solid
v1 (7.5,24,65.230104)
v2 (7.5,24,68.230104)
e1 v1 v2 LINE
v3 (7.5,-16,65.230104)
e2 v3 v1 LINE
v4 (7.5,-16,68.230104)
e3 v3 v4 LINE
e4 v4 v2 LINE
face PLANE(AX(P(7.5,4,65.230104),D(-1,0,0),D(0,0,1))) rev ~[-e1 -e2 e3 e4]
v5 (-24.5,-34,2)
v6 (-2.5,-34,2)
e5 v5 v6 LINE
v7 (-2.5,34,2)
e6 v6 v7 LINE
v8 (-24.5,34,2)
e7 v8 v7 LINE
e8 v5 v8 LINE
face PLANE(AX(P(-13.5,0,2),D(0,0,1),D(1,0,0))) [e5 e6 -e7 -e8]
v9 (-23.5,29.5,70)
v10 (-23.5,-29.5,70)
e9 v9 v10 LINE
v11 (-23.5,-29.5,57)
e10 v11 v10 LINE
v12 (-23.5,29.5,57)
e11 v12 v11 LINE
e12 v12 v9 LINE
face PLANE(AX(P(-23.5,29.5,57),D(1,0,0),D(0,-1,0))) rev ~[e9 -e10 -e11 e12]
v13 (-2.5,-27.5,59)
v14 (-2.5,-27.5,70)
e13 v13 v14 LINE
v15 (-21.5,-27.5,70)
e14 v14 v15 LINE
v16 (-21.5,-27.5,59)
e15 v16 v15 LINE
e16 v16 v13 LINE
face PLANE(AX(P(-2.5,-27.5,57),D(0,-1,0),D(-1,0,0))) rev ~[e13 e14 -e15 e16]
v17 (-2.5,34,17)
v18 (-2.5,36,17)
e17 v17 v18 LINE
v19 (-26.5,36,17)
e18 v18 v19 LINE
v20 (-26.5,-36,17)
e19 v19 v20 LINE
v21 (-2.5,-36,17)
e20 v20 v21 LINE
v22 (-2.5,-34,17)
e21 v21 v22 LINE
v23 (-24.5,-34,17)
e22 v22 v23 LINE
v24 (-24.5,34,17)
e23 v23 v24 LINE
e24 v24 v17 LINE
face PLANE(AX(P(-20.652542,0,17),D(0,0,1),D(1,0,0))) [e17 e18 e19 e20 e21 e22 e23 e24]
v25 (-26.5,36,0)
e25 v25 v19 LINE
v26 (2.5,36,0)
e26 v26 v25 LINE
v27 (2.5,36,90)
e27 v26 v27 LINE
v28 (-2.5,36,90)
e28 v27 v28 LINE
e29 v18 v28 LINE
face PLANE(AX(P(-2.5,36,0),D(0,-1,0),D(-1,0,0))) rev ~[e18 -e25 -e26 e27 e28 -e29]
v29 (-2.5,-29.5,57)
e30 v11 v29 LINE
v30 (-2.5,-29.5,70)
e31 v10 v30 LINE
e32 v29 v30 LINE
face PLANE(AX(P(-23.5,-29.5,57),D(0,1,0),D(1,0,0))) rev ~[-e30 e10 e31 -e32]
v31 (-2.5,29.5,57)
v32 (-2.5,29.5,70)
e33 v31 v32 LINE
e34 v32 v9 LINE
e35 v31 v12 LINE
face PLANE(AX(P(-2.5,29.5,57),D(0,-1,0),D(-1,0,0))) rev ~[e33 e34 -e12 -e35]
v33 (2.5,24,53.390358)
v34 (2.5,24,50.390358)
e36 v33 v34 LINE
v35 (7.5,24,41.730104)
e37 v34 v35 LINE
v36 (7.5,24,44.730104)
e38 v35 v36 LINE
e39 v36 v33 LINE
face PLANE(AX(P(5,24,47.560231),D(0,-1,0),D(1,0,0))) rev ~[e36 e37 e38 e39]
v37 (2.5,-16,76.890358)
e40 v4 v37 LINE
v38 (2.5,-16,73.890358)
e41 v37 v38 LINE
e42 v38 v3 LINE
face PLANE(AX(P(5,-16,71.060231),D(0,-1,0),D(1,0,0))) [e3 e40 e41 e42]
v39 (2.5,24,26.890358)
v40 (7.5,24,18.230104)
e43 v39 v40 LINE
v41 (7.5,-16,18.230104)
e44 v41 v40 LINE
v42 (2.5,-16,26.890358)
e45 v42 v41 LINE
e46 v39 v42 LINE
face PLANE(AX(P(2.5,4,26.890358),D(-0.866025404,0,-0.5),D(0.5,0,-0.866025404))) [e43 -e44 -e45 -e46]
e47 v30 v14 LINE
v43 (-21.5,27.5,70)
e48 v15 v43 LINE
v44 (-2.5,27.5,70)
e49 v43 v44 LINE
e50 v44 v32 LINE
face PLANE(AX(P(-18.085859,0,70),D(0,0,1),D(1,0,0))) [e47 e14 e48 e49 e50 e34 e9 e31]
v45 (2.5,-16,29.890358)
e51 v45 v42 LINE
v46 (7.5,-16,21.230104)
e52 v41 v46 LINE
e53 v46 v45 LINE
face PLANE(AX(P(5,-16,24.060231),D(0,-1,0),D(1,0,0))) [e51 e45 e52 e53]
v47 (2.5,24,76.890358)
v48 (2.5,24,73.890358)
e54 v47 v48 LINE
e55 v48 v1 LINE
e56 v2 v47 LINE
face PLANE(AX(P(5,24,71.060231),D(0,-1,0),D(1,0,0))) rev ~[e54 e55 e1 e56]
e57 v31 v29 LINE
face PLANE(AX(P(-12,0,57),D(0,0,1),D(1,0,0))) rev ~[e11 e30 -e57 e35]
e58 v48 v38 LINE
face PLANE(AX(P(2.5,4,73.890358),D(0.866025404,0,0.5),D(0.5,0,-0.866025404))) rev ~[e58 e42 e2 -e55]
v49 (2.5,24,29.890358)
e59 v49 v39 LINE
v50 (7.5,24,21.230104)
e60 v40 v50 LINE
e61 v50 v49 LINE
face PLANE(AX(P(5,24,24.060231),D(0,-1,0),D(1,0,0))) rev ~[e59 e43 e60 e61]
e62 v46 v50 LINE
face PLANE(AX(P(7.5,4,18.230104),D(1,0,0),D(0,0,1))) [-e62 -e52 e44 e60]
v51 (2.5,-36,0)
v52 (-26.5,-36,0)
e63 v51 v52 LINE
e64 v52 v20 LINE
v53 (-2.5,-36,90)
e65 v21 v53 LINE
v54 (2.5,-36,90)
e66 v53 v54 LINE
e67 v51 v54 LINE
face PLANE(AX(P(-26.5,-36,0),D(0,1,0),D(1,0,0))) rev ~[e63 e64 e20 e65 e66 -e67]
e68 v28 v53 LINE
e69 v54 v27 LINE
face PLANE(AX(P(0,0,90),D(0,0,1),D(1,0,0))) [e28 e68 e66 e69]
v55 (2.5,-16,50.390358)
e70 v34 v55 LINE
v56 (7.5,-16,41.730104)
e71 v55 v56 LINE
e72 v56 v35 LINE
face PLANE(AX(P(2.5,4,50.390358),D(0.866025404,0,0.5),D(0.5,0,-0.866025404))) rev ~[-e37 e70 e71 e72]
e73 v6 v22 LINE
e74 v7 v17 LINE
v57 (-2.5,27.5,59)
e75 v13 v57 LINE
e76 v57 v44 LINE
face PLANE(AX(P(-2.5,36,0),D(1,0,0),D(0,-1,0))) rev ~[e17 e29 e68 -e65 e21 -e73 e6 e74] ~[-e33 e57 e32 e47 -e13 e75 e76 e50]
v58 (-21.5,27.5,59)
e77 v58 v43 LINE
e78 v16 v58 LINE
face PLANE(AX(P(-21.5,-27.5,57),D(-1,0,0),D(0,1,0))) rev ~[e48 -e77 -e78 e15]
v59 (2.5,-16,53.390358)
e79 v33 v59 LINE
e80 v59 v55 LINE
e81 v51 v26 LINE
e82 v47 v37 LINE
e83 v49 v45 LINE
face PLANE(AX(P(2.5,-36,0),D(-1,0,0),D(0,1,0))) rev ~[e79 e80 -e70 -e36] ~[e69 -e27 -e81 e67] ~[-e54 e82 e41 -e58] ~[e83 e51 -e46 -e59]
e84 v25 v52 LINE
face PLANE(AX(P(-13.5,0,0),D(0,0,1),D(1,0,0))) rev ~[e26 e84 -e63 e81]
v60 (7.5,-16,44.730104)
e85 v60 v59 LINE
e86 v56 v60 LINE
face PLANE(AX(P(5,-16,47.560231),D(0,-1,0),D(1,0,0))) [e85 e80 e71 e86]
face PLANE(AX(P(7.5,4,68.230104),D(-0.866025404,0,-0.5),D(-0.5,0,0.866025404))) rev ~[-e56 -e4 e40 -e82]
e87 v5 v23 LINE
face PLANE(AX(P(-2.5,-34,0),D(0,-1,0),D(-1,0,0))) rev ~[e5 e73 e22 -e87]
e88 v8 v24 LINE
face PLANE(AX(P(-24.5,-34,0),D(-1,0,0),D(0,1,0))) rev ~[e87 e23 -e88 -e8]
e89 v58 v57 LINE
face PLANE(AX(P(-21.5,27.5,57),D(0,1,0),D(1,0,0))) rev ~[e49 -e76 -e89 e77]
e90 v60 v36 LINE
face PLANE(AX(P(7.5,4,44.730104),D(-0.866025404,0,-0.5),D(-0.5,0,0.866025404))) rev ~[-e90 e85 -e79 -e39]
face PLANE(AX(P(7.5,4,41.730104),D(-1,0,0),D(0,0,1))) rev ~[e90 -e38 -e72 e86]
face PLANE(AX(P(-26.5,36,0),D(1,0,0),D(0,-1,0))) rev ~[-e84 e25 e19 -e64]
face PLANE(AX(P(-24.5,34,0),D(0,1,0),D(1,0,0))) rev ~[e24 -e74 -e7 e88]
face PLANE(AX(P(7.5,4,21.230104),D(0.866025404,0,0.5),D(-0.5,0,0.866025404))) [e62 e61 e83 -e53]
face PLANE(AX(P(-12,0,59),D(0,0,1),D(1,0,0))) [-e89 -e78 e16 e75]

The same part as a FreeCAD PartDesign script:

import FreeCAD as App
import Part
import Sketcher
from FreeCAD import Vector
Q = App.Units.Quantity

doc = App.newDocument("Part")
body = doc.addObject("PartDesign::Body", "Body")

# Sketch on XY plane
sketch1 = body.newObject("Sketcher::SketchObject", "Sketch")
sketch1.AttachmentSupport = (doc.getObject("XY_Plane"), [""])
sketch1.MapMode = "FlatFace"
sketch1.addGeometry([
    Part.LineSegment(Vector(2, -36, 0), Vector(2, 36, 0)),
    Part.LineSegment(Vector(2, 36, 0), Vector(-2, 36, 0)),
    Part.LineSegment(Vector(-2, 36, 0), Vector(-2, -36, 0)),
    Part.LineSegment(Vector(-2, -36, 0), Vector(2, -36, 0)),
], False)
sketch1.addConstraint([
    Sketcher.Constraint("Coincident", 0, 2, 1, 1),
    Sketcher.Constraint("Coincident", 1, 2, 2, 1),
    Sketcher.Constraint("Coincident", 2, 2, 3, 1),
    Sketcher.Constraint("Coincident", 3, 2, 0, 1),
    Sketcher.Constraint("Vertical", 0),
    Sketcher.Constraint("Horizontal", 1),
    Sketcher.Constraint("Vertical", 2),
    Sketcher.Constraint("Horizontal", 3),
    Sketcher.Constraint("Symmetric", 0, 2, 2, 2, -1, 1),
    Sketcher.Constraint("DistanceX", 1, 2, 1, 1, 5.0),
    Sketcher.Constraint("DistanceY", 0, 1, 0, 2, 72.0),
])
pad1 = body.newObject("PartDesign::Pad", "Pad")
pad1.Profile = sketch1
pad1.Length = 90

# Sketch on XY plane
sketch2 = body.newObject("Sketcher::SketchObject", "Sketch001")
sketch2.AttachmentSupport = (doc.getObject("XY_Plane"), [""])
sketch2.MapMode = "FlatFace"
sketch2.addGeometry([
    Part.LineSegment(Vector(-2.5, 34, 0), Vector(-2.5, 36, 0)),  # 0
    Part.LineSegment(Vector(-2.5, 36, 0), Vector(-26.5, 36, 0)),  # 1
    Part.LineSegment(Vector(-26.5, 36, 0), Vector(-26.5, -36, 0)),  # 2
    Part.LineSegment(Vector(-26.5, -36, 0), Vector(-2.5, -36, 0)),  # 3
    Part.LineSegment(Vector(-2.5, -36, 0), Vector(-2.5, -34, 0)),  # 4
    Part.LineSegment(Vector(-2.5, -34, 0), Vector(-24.5, -34, 0)),  # 5
    Part.LineSegment(Vector(-24.5, -34, 0), Vector(-24.5, 34, 0)),  # 6
    Part.LineSegment(Vector(-24.5, 34, 0), Vector(-2.5, 34, 0)),  # 7
], False)
sketch2.addConstraint([
    Sketcher.Constraint("Coincident", 0, 2, 1, 1),
    Sketcher.Constraint("Coincident", 1, 2, 2, 1),
    Sketcher.Constraint("Coincident", 2, 2, 3, 1),
    Sketcher.Constraint("Coincident", 3, 2, 4, 1),
    Sketcher.Constraint("Coincident", 4, 2, 5, 1),
    Sketcher.Constraint("Coincident", 5, 2, 6, 1),
    Sketcher.Constraint("Coincident", 6, 2, 7, 1),
    Sketcher.Constraint("Coincident", 7, 2, 0, 1),
    Sketcher.Constraint("Vertical", 0),
    Sketcher.Constraint("Horizontal", 1),
    Sketcher.Constraint("Vertical", 2),
    Sketcher.Constraint("Horizontal", 3),
    Sketcher.Constraint("Vertical", 4),
    Sketcher.Constraint("Horizontal", 5),
    Sketcher.Constraint("Vertical", 6),
    Sketcher.Constraint("Horizontal", 7),
    Sketcher.Constraint("Symmetric", 0, 2, 3, 2, -1),
    Sketcher.Constraint("Equal", 0, 4),
    Sketcher.Constraint("DistanceX", 1, 2, 1, 1, 24.0),
    Sketcher.Constraint("DistanceX", 5, 2, 5, 1, 22.0),
    Sketcher.Constraint("DistanceY", 0, 1, 0, 2, 2.0),
    Sketcher.Constraint("DistanceY", 2, 2, 2, 1, 72.0),
    Sketcher.Constraint("DistanceX", 0, 2, -1, 1, 2.5),
])
pad2 = body.newObject("PartDesign::Pad", "Pad001")
pad2.Profile = sketch2
pad2.Length = 17

# Sketch on XY plane
sketch3 = body.newObject("Sketcher::SketchObject", "Sketch002")
sketch3.AttachmentSupport = (doc.getObject("XY_Plane"), [""])
sketch3.MapMode = "FlatFace"
sketch3.addGeometry([
    Part.LineSegment(Vector(-24, 34, 0), Vector(-24, -34, 0)),
    Part.LineSegment(Vector(-24, -34, 0), Vector(-2, -34, 0)),
    Part.LineSegment(Vector(-2, -34, 0), Vector(-2, 34, 0)),
    Part.LineSegment(Vector(-2, 34, 0), Vector(-24, 34, 0)),
], False)
sketch3.addConstraint([
    Sketcher.Constraint("Coincident", 0, 2, 1, 1),
    Sketcher.Constraint("Coincident", 1, 2, 2, 1),
    Sketcher.Constraint("Coincident", 2, 2, 3, 1),
    Sketcher.Constraint("Coincident", 3, 2, 0, 1),
    Sketcher.Constraint("Vertical", 0),
    Sketcher.Constraint("Horizontal", 1),
    Sketcher.Constraint("Vertical", 2),
    Sketcher.Constraint("Horizontal", 3),
    Sketcher.Constraint("DistanceX", 1, 1, 1, 2, 22.0),
    Sketcher.Constraint("DistanceY", 0, 2, 0, 1, 68.0),
    Sketcher.Constraint("DistanceY", 0, 2, -1, 1, 34.0),
    Sketcher.Constraint("DistanceX", 0, 2, -1, 1, 24.5),
])
pad3 = body.newObject("PartDesign::Pad", "Pad002")
pad3.Profile = sketch3
pad3.Length = 2

# Sketch on XY plane
sketch4 = body.newObject("Sketcher::SketchObject", "Sketch003")
sketch4.AttachmentSupport = (doc.getObject("XY_Plane"), [""])
sketch4.MapMode = "FlatFace"
sketch4.AttachmentOffset = App.Placement(Vector(0, 0, 57), App.Rotation())
sketch4.addGeometry([
    Part.LineSegment(Vector(-2.5, 27.5, 0), Vector(-2.5, 29.5, 0)),  # 0
    Part.LineSegment(Vector(-2.5, 29.5, 0), Vector(-23.5, 29.5, 0)),  # 1
    Part.LineSegment(Vector(-23.5, 29.5, 0), Vector(-23.5, -29.5, 0)),  # 2
    Part.LineSegment(Vector(-23.5, -29.5, 0), Vector(-2.5, -29.5, 0)),  # 3
    Part.LineSegment(Vector(-2.5, -29.5, 0), Vector(-2.5, -27.5, 0)),  # 4
    Part.LineSegment(Vector(-2.5, -27.5, 0), Vector(-21.5, -27.5, 0)),  # 5
    Part.LineSegment(Vector(-21.5, -27.5, 0), Vector(-21.5, 27.5, 0)),  # 6
    Part.LineSegment(Vector(-21.5, 27.5, 0), Vector(-2.5, 27.5, 0)),  # 7
], False)
sketch4.addConstraint([
    Sketcher.Constraint("Coincident", 0, 2, 1, 1),
    Sketcher.Constraint("Coincident", 1, 2, 2, 1),
    Sketcher.Constraint("Coincident", 2, 2, 3, 1),
    Sketcher.Constraint("Coincident", 3, 2, 4, 1),
    Sketcher.Constraint("Coincident", 4, 2, 5, 1),
    Sketcher.Constraint("Coincident", 5, 2, 6, 1),
    Sketcher.Constraint("Coincident", 6, 2, 7, 1),
    Sketcher.Constraint("Coincident", 7, 2, 0, 1),
    Sketcher.Constraint("Vertical", 0),
    Sketcher.Constraint("Horizontal", 1),
    Sketcher.Constraint("Vertical", 2),
    Sketcher.Constraint("Horizontal", 3),
    Sketcher.Constraint("Vertical", 4),
    Sketcher.Constraint("Horizontal", 5),
    Sketcher.Constraint("Vertical", 6),
    Sketcher.Constraint("Horizontal", 7),
    Sketcher.Constraint("Symmetric", 0, 2, 3, 2, -1),
    Sketcher.Constraint("Equal", 0, 4),
    Sketcher.Constraint("DistanceX", 1, 2, 1, 1, 21.0),
    Sketcher.Constraint("DistanceX", 5, 2, 5, 1, 19.0),
    Sketcher.Constraint("DistanceY", 0, 1, 0, 2, 2.0),
    Sketcher.Constraint("DistanceY", 2, 2, 2, 1, 59.0),
    Sketcher.Constraint("DistanceX", 0, 2, -1, 1, 2.5),
])
pad4 = body.newObject("PartDesign::Pad", "Pad003")
pad4.Profile = sketch4
pad4.Length = 13

# Sketch on XY plane
sketch5 = body.newObject("Sketcher::SketchObject", "Sketch004")
sketch5.AttachmentSupport = (doc.getObject("XY_Plane"), [""])
sketch5.MapMode = "FlatFace"
sketch5.AttachmentOffset = App.Placement(Vector(0, 0, 57), App.Rotation())
sketch5.addGeometry([
    Part.LineSegment(Vector(-22, 28, 0), Vector(-22, -28, 0)),
    Part.LineSegment(Vector(-22, -28, 0), Vector(-2, -28, 0)),
    Part.LineSegment(Vector(-2, -28, 0), Vector(-2, 28, 0)),
    Part.LineSegment(Vector(-2, 28, 0), Vector(-22, 28, 0)),
], False)
sketch5.addConstraint([
    Sketcher.Constraint("Coincident", 0, 2, 1, 1),
    Sketcher.Constraint("Coincident", 1, 2, 2, 1),
    Sketcher.Constraint("Coincident", 2, 2, 3, 1),
    Sketcher.Constraint("Coincident", 3, 2, 0, 1),
    Sketcher.Constraint("Vertical", 0),
    Sketcher.Constraint("Horizontal", 1),
    Sketcher.Constraint("Vertical", 2),
    Sketcher.Constraint("Horizontal", 3),
    Sketcher.Constraint("DistanceX", 1, 1, 1, 2, 19.0),
    Sketcher.Constraint("DistanceY", 0, 2, 0, 1, 55.0),
    Sketcher.Constraint("DistanceX", 0, 2, -1, 1, 21.5),
    Sketcher.Constraint("DistanceY", 0, 2, -1, 1, 27.5),
])
pad5 = body.newObject("PartDesign::Pad", "Pad004")
pad5.Profile = sketch5
pad5.Length = 2

# Sketch on XZ plane
sketch6 = body.newObject("Sketcher::SketchObject", "Sketch005")
sketch6.AttachmentSupport = (doc.getObject("XZ_Plane"), [""])
sketch6.MapMode = "FlatFace"
sketch6.AttachmentOffset = App.Placement(Vector(0, 0, -4), App.Rotation())
sketch6.addGeometry([
    Part.LineSegment(Vector(7.5, 68.2, 0), Vector(2.5, 76.9, 0)),  # 0
    Part.LineSegment(Vector(2.5, 76.9, 0), Vector(2.5, 73.9, 0)),  # 1
    Part.LineSegment(Vector(2.5, 73.9, 0), Vector(7.5, 65.2, 0)),  # 2
    Part.LineSegment(Vector(7.5, 65.2, 0), Vector(7.5, 68.2, 0)),  # 3
    Part.LineSegment(Vector(7.5, 44.7, 0), Vector(2.5, 53.4, 0)),  # 4
    Part.LineSegment(Vector(2.5, 53.4, 0), Vector(2.5, 50.4, 0)),  # 5
    Part.LineSegment(Vector(2.5, 50.4, 0), Vector(7.5, 41.7, 0)),  # 6
    Part.LineSegment(Vector(7.5, 41.7, 0), Vector(7.5, 44.7, 0)),  # 7
    Part.LineSegment(Vector(7.5, 21.2, 0), Vector(2.5, 29.9, 0)),  # 8
    Part.LineSegment(Vector(2.5, 29.9, 0), Vector(2.5, 26.9, 0)),  # 9
    Part.LineSegment(Vector(2.5, 26.9, 0), Vector(7.5, 18.2, 0)),  # 10
    Part.LineSegment(Vector(7.5, 18.2, 0), Vector(7.5, 21.2, 0)),  # 11
], False)
sketch6.addConstraint([
    Sketcher.Constraint("Coincident", 0, 2, 1, 1),
    Sketcher.Constraint("Coincident", 1, 2, 2, 1),
    Sketcher.Constraint("Coincident", 2, 2, 3, 1),
    Sketcher.Constraint("Coincident", 3, 2, 0, 1),
    Sketcher.Constraint("Coincident", 4, 2, 5, 1),
    Sketcher.Constraint("Coincident", 5, 2, 6, 1),
    Sketcher.Constraint("Coincident", 6, 2, 7, 1),
    Sketcher.Constraint("Coincident", 7, 2, 4, 1),
    Sketcher.Constraint("Coincident", 8, 2, 9, 1),
    Sketcher.Constraint("Coincident", 9, 2, 10, 1),
    Sketcher.Constraint("Coincident", 10, 2, 11, 1),
    Sketcher.Constraint("Coincident", 11, 2, 8, 1),
    Sketcher.Constraint("Vertical", 1),
    Sketcher.Constraint("Vertical", 3),
    Sketcher.Constraint("Vertical", 5),
    Sketcher.Constraint("Vertical", 7),
    Sketcher.Constraint("Vertical", 9),
    Sketcher.Constraint("Vertical", 11),
    Sketcher.Constraint("Parallel", 0, 2),
    Sketcher.Constraint("Parallel", 2, 4),
    Sketcher.Constraint("Parallel", 4, 6),
    Sketcher.Constraint("Parallel", 6, 8),
    Sketcher.Constraint("Parallel", 8, 10),
    Sketcher.Constraint("Vertical", 1, 2, 4, 2),
    Sketcher.Constraint("Vertical", 3, 2, 6, 2),
    Sketcher.Constraint("Vertical", 5, 2, 8, 2),
    Sketcher.Constraint("Vertical", 7, 2, 10, 2),
    Sketcher.Constraint("Equal", 3, 5),
    Sketcher.Constraint("Equal", 7, 9),
    Sketcher.Constraint("DistanceY", 1, 2, 1, 1, 3.0),
    Sketcher.Constraint("Angle", 0, Q("120 deg")),
    Sketcher.Constraint("Distance", 0, 10.0),
    Sketcher.Constraint("DistanceX", -1, 1, 0, 2, 2.5),
    Sketcher.Constraint("DistanceY", 4, 2, 1, 2, 20.5),
    Sketcher.Constraint("DistanceY", 8, 2, 5, 2, 20.5),
    Sketcher.Constraint("DistanceY", -1, 1, 0, 2, 76.890358),
])
pad6 = body.newObject("PartDesign::Pad", "Pad005")
pad6.Profile = sketch6
pad6.Length = 40
pad6.Midplane = True

doc.recompute()
